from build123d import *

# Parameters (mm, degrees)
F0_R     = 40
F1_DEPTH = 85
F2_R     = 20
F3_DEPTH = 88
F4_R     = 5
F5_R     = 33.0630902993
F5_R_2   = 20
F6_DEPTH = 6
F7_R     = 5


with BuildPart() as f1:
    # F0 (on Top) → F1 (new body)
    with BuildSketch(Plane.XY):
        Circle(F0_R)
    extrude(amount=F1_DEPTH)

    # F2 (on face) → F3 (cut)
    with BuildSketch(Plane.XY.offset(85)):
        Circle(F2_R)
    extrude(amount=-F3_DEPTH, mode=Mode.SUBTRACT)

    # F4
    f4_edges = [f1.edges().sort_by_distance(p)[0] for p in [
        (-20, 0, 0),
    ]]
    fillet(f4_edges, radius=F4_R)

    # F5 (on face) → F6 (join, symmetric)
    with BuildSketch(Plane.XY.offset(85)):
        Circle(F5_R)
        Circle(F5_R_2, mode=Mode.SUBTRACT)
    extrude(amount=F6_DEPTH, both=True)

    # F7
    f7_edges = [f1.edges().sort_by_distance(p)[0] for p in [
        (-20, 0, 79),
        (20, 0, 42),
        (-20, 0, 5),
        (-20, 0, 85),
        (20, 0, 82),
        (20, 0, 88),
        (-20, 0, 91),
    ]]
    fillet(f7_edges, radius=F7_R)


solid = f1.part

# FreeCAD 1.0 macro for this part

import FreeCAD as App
import Part
import Sketcher

V = App.Vector
Q = App.Units.Quantity


def edges_at(feature, points):
    """Names of the edges that pass closest to the given points."""
    edges = feature.Shape.Edges
    near = lambda p: min(range(len(edges)), key=lambda i: edges[i].distToShape(Part.Vertex(*p))[0])
    return sorted({f"Edge{near(p) + 1}" for p in points})

doc = App.newDocument("Part")
body = doc.addObject("PartDesign::Body", "Body")

# Sketch on XY plane
sketch1 = body.newObject("Sketcher::SketchObject", "Sketch")
sketch1.AttachmentSupport = (doc.getObject("XY_Plane"), [""])
sketch1.MapMode = "FlatFace"
sketch1.addGeometry(Part.Circle(V(0, 0, 0), V(0, 0, 1), 40), False)
sketch1.addConstraint([
    Sketcher.Constraint("Coincident", 0, 3, -1, 1),
    Sketcher.Constraint("Diameter", 0, Q("80 mm")),
])
pad1 = body.newObject("PartDesign::Pad", "Pad")
pad1.Profile = sketch1
pad1.Length = 85

# Sketch on XY plane
sketch2 = body.newObject("Sketcher::SketchObject", "Sketch001")
sketch2.AttachmentSupport = (doc.getObject("XY_Plane"), [""])
sketch2.MapMode = "FlatFace"
sketch2.AttachmentOffset = App.Placement(V(0, 0, 85), App.Rotation())
sketch2.addGeometry(Part.Circle(V(0, 0, 0), V(0, 0, 1), 20), False)
sketch2.addConstraint([
    Sketcher.Constraint("Coincident", 0, 3, -1, 1),
    Sketcher.Constraint("Diameter", 0, Q("40 mm")),
])
pocket1 = body.newObject("PartDesign::Pocket", "Pocket")
pocket1.Profile = sketch2
pocket1.Length = 88
doc.recompute()

fillet = body.newObject("PartDesign::Fillet", "Fillet")
fillet.Base = (pocket1, edges_at(pocket1, [(-20, 0, 0)]))
fillet.Radius = 5

# Sketch on XY plane
sketch3 = body.newObject("Sketcher::SketchObject", "Sketch002")
sketch3.AttachmentSupport = (doc.getObject("XY_Plane"), [""])
sketch3.MapMode = "FlatFace"
sketch3.AttachmentOffset = App.Placement(V(0, 0, 85), App.Rotation())
sketch3.addGeometry([
    Part.Circle(V(0, 0, 0), V(0, 0, 1), 33),
    Part.Circle(V(0, 0, 0), V(0, 0, 1), 20),
], False)
sketch3.addConstraint([
    Sketcher.Constraint("Coincident", 0, 3, -1, 1),
    Sketcher.Constraint("Coincident", 1, 3, -1, 1),
    Sketcher.Constraint("Diameter", 1, Q("40 mm")),
    Sketcher.Constraint("Diameter", 0, Q("66.126181 mm")),
])
pad2 = body.newObject("PartDesign::Pad", "Pad001")
pad2.Profile = sketch3
pad2.Length = 12
pad2.Midplane = True
doc.recompute()

fillet2 = body.newObject("PartDesign::Fillet", "Fillet001")
fillet2.Base = (pad2, edges_at(pad2, [
    (-20, 0, 91),
    (20, 0, 48),
    (-20, 0, 5),
    (-20, 0, 91),
    (20, 0, 48),
    (20, 0, 48),
    (-20, 0, 91),
]))
fillet2.Radius = 5

doc.recompute()
